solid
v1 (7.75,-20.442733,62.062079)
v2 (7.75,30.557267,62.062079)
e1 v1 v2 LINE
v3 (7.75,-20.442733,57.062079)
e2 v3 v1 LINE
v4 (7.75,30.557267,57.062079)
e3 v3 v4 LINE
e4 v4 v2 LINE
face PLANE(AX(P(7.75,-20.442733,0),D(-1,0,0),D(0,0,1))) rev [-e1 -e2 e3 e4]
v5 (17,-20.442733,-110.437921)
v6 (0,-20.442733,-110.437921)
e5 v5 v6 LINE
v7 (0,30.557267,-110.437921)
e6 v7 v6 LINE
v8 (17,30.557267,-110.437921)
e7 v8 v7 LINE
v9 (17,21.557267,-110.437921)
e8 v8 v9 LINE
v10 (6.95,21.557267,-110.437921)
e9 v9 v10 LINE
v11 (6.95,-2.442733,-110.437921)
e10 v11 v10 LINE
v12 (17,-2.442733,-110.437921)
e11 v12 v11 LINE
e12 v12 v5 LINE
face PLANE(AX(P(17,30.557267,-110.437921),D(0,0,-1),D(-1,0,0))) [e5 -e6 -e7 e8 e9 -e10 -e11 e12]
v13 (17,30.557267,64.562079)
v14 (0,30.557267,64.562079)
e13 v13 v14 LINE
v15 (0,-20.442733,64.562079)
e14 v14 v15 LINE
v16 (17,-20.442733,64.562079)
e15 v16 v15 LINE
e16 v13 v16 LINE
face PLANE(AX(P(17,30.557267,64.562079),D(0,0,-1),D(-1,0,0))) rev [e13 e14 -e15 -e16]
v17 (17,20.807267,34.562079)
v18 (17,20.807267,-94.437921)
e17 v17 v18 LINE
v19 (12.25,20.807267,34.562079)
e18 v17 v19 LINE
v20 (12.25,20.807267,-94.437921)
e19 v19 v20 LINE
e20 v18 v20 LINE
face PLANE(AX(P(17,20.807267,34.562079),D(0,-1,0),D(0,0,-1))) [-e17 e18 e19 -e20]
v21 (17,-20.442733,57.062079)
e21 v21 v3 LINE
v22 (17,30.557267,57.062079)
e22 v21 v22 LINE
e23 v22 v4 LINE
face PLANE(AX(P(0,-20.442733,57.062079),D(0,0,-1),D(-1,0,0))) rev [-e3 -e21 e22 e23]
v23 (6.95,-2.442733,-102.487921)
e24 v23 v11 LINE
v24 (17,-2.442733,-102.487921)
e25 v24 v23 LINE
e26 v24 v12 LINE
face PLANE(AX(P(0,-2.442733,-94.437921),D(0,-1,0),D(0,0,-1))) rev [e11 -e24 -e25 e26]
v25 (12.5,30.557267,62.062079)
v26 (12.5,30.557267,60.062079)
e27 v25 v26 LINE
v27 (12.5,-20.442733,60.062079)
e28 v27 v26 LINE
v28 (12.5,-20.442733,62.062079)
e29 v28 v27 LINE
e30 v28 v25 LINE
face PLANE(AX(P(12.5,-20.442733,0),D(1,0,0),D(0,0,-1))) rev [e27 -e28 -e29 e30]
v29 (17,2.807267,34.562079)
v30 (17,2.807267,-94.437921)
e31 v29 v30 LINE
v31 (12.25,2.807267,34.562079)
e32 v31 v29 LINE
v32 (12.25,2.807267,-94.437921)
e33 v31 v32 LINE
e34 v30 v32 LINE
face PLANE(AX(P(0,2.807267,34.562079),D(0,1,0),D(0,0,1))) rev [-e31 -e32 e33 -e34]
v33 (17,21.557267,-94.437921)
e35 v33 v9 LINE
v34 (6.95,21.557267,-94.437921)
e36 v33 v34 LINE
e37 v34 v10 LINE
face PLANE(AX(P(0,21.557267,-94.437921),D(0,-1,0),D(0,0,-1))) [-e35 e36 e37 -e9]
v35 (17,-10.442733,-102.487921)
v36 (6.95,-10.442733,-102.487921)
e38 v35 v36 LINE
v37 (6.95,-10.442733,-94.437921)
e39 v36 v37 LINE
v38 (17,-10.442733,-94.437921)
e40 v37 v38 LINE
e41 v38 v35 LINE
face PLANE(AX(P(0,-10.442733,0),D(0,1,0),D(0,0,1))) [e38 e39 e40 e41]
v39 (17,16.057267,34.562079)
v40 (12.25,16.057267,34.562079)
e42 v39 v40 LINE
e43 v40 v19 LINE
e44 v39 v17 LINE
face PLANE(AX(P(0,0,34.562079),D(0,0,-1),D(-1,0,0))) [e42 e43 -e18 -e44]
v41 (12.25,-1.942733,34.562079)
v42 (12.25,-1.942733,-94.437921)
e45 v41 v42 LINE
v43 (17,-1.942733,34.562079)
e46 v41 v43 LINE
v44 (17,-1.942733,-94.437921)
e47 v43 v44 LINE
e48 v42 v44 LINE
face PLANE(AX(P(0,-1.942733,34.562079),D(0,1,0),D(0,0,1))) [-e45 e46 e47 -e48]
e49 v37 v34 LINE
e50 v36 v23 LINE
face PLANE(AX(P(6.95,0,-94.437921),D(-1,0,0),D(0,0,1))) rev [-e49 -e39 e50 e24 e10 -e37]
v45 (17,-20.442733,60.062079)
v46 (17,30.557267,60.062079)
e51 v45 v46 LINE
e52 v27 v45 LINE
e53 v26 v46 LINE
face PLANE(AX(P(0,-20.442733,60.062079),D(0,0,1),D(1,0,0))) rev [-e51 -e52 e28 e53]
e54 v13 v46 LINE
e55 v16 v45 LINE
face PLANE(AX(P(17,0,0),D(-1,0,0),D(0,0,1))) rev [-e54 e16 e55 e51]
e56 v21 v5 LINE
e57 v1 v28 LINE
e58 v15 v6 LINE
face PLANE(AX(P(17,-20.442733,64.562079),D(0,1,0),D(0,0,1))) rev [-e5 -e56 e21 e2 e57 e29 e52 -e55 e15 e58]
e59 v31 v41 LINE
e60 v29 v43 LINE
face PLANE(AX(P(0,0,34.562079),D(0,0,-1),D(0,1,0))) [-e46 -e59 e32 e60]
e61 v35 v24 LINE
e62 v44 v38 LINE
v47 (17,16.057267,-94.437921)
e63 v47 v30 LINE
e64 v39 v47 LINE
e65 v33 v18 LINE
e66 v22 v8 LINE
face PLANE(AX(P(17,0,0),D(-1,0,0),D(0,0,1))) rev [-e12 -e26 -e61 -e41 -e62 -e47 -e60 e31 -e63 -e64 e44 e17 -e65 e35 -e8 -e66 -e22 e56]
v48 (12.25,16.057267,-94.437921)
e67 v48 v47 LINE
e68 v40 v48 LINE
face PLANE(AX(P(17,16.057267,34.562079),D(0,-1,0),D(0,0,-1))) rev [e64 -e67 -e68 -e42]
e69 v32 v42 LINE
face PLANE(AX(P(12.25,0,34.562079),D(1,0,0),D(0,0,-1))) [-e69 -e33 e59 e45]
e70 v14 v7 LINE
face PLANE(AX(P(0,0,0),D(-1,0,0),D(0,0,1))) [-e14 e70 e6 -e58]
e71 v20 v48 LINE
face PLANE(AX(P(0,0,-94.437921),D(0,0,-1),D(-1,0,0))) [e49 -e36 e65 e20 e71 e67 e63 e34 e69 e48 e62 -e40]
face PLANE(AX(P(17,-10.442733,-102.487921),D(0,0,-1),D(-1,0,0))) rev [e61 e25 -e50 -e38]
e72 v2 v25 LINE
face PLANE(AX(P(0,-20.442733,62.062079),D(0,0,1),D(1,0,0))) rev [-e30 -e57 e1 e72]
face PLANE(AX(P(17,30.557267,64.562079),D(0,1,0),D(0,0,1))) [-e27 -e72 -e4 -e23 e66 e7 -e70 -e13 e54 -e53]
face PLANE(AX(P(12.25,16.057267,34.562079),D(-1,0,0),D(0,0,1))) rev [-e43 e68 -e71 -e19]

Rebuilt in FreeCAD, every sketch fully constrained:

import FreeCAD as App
import Part
import Sketcher

V = App.Vector


def add_polygon(sketch, points):
    """Adds a closed chain of lines whose ends are joined by coincident constraints."""
    first, n = sketch.GeometryCount, len(points)
    for a, b in zip(points, points[1:] + points[:1]):
        sketch.addGeometry(Part.LineSegment(App.Vector(*a, 0), App.Vector(*b, 0)), False)
    for i in range(n):
        sketch.addConstraint(Sketcher.Constraint("Coincident", first + i, 2, first + (i + 1) % n, 1))

doc = App.newDocument("Part")
body = doc.addObject("PartDesign::Body", "Body")

# Sketch on YZ plane
sketch1 = doc.addObject("Sketcher::SketchObject", "Sketch")
body.addObject(sketch1)
sketch1.AttachmentSupport = (doc.YZ_Plane, [""])
sketch1.MapMode = "FlatFace"
add_polygon(sketch1, [(30.557267, 64.562079), (-20.442733, 64.562079), (-20.442733, -110.437921), (30.557267, -110.437921)])  # lines 0-3
sketch1.addConstraint([
    Sketcher.Constraint("Horizontal", 0),
    Sketcher.Constraint("Vertical", 1),
    Sketcher.Constraint("Horizontal", 2),
    Sketcher.Constraint("Vertical", 3),
    Sketcher.Constraint("DistanceX", 0, 2, 0, 1, 51.0),
    Sketcher.Constraint("DistanceY", 1, 2, 1, 1, 175.0),
    Sketcher.Constraint("DistanceY", -1, 1, 0, 2, 64.562079),
    Sketcher.Constraint("DistanceX", 0, 2, -1, 1, 20.442733),
])
pad1 = doc.addObject("PartDesign::Pad", "Pad")
body.addObject(pad1)
pad1.Profile = sketch1
pad1.Length = 17

# Sketch on XZ plane
sketch2 = doc.addObject("Sketcher::SketchObject", "Sketch001")
body.addObject(sketch2)
sketch2.AttachmentSupport = (doc.XZ_Plane, [""])
sketch2.MapMode = "FlatFace"
sketch2.AttachmentOffset = App.Placement(V(0, 0, -30.557267), App.Rotation())
add_polygon(sketch2, [(12.5, 60.062079), (17, 60.062079), (17, 57.062079), (7.75, 57.062079), (7.75, 62.062079), (12.5, 62.062079)])  # lines 0-5
sketch2.addConstraint([
    Sketcher.Constraint("Horizontal", 0),
    Sketcher.Constraint("Vertical", 1),
    Sketcher.Constraint("Horizontal", 2),
    Sketcher.Constraint("Vertical", 3),
    Sketcher.Constraint("Horizontal", 4),
    Sketcher.Constraint("Vertical", 5),
    Sketcher.Constraint("DistanceY", 1, 2, 1, 1, 3.0),
    Sketcher.Constraint("DistanceY", 3, 1, 3, 2, 5.0),
    Sketcher.Constraint("DistanceX", 0, 1, 0, 2, 4.5),
    Sketcher.Constraint("DistanceX", -1, 1, 0, 2, 17.0),
    Sketcher.Constraint("DistanceX", 2, 2, 2, 1, 9.25),
    Sketcher.Constraint("DistanceY", -1, 1, 0, 2, 60.062079),
])
pocket1 = doc.addObject("PartDesign::Pocket", "Pocket")
body.addObject(pocket1)
pocket1.Profile = sketch2
pocket1.Type = "ThroughAll"
pocket1.Reversed = True

# Sketch on XY plane
sketch3 = doc.addObject("Sketcher::SketchObject", "Sketch002")
body.addObject(sketch3)
sketch3.AttachmentSupport = (doc.XY_Plane, [""])
sketch3.MapMode = "FlatFace"
sketch3.AttachmentOffset = App.Placement(V(0, 0, -110.437921), App.Rotation())
add_polygon(sketch3, [(17, 2.807267), (17, -1.942733), (12.25, -1.942733), (12.25, 2.807267)])  # lines 0-3
add_polygon(sketch3, [(17, 20.807267), (17, 16.057267), (12.25, 16.057267), (12.25, 20.807267)])  # lines 4-7
sketch3.addConstraint([
    Sketcher.Constraint("Vertical", 0),
    Sketcher.Constraint("Horizontal", 1),
    Sketcher.Constraint("Vertical", 2),
    Sketcher.Constraint("Horizontal", 3),
    Sketcher.Constraint("Vertical", 4),
    Sketcher.Constraint("Horizontal", 5),
    Sketcher.Constraint("Vertical", 6),
    Sketcher.Constraint("Horizontal", 7),
    Sketcher.Constraint("Vertical", 3, 2, 4, 2),
    Sketcher.Constraint("Vertical", 2, 2, 5, 2),
    Sketcher.Constraint("Equal", 7, 0),
    Sketcher.Constraint("Equal", 2, 4),
    Sketcher.Constraint("DistanceX", -1, 1, 0, 2, 17.0),
    Sketcher.Constraint("DistanceY", 0, 2, 4, 2, 18.0),
    Sketcher.Constraint("DistanceX", 1, 2, 1, 1, 4.75),
    Sketcher.Constraint("DistanceY", 0, 2, -1, 1, 1.942733),
])
pocket2 = doc.addObject("PartDesign::Pocket", "Pocket001")
body.addObject(pocket2)
pocket2.Profile = sketch3
pocket2.Length = 145
pocket2.Reversed = True

# Sketch on XY plane
sketch4 = doc.addObject("Sketcher::SketchObject", "Sketch003")
body.addObject(sketch4)
sketch4.AttachmentSupport = (doc.XY_Plane, [""])
sketch4.MapMode = "FlatFace"
sketch4.AttachmentOffset = App.Placement(V(0, 0, -110.437921), App.Rotation())
add_polygon(sketch4, [(17, 21.557267), (17, -2.442733), (6.95, -2.442733), (6.95, 21.557267)])  # lines 0-3
sketch4.addConstraint([
    Sketcher.Constraint("Vertical", 0),
    Sketcher.Constraint("Horizontal", 1),
    Sketcher.Constraint("Vertical", 2),
    Sketcher.Constraint("Horizontal", 3),
    Sketcher.Constraint("DistanceY", 0, 2, 0, 1, 24.0),
    Sketcher.Constraint("DistanceX", -1, 1, 0, 2, 17.0),
    Sketcher.Constraint("DistanceX", 1, 2, 1, 1, 10.05),
    Sketcher.Constraint("DistanceY", 0, 2, -1, 1, 2.442733),
])
pocket3 = doc.addObject("PartDesign::Pocket", "Pocket002")
body.addObject(pocket3)
pocket3.Profile = sketch4
pocket3.Length = 16
pocket3.Reversed = True

# Sketch on XZ plane
sketch5 = doc.addObject("Sketcher::SketchObject", "Sketch004")
body.addObject(sketch5)
sketch5.AttachmentSupport = (doc.XZ_Plane, [""])
sketch5.MapMode = "FlatFace"
sketch5.AttachmentOffset = App.Placement(V(0, 0, 2.442733), App.Rotation())
add_polygon(sketch5, [(6.95, -102.487921), (6.95, -94.437921), (17, -94.437921), (17, -102.487921)])  # lines 0-3
sketch5.addConstraint([
    Sketcher.Constraint("Vertical", 0),
    Sketcher.Constraint("Horizontal", 1),
    Sketcher.Constraint("Vertical", 2),
    Sketcher.Constraint("Horizontal", 3),
    Sketcher.Constraint("DistanceX", -1, 1, 1, 2, 17.0),
    Sketcher.Constraint("DistanceX", 1, 1, 1, 2, 10.05),
    Sketcher.Constraint("DistanceY", 0, 1, 0, 2, 8.05),
    Sketcher.Constraint("DistanceY", 0, 2, -1, 1, 94.437921),
])
pocket4 = doc.addObject("PartDesign::Pocket", "Pocket003")
body.addObject(pocket4)
pocket4.Profile = sketch5
pocket4.Length = 8
pocket4.Reversed = True

doc.recompute()
